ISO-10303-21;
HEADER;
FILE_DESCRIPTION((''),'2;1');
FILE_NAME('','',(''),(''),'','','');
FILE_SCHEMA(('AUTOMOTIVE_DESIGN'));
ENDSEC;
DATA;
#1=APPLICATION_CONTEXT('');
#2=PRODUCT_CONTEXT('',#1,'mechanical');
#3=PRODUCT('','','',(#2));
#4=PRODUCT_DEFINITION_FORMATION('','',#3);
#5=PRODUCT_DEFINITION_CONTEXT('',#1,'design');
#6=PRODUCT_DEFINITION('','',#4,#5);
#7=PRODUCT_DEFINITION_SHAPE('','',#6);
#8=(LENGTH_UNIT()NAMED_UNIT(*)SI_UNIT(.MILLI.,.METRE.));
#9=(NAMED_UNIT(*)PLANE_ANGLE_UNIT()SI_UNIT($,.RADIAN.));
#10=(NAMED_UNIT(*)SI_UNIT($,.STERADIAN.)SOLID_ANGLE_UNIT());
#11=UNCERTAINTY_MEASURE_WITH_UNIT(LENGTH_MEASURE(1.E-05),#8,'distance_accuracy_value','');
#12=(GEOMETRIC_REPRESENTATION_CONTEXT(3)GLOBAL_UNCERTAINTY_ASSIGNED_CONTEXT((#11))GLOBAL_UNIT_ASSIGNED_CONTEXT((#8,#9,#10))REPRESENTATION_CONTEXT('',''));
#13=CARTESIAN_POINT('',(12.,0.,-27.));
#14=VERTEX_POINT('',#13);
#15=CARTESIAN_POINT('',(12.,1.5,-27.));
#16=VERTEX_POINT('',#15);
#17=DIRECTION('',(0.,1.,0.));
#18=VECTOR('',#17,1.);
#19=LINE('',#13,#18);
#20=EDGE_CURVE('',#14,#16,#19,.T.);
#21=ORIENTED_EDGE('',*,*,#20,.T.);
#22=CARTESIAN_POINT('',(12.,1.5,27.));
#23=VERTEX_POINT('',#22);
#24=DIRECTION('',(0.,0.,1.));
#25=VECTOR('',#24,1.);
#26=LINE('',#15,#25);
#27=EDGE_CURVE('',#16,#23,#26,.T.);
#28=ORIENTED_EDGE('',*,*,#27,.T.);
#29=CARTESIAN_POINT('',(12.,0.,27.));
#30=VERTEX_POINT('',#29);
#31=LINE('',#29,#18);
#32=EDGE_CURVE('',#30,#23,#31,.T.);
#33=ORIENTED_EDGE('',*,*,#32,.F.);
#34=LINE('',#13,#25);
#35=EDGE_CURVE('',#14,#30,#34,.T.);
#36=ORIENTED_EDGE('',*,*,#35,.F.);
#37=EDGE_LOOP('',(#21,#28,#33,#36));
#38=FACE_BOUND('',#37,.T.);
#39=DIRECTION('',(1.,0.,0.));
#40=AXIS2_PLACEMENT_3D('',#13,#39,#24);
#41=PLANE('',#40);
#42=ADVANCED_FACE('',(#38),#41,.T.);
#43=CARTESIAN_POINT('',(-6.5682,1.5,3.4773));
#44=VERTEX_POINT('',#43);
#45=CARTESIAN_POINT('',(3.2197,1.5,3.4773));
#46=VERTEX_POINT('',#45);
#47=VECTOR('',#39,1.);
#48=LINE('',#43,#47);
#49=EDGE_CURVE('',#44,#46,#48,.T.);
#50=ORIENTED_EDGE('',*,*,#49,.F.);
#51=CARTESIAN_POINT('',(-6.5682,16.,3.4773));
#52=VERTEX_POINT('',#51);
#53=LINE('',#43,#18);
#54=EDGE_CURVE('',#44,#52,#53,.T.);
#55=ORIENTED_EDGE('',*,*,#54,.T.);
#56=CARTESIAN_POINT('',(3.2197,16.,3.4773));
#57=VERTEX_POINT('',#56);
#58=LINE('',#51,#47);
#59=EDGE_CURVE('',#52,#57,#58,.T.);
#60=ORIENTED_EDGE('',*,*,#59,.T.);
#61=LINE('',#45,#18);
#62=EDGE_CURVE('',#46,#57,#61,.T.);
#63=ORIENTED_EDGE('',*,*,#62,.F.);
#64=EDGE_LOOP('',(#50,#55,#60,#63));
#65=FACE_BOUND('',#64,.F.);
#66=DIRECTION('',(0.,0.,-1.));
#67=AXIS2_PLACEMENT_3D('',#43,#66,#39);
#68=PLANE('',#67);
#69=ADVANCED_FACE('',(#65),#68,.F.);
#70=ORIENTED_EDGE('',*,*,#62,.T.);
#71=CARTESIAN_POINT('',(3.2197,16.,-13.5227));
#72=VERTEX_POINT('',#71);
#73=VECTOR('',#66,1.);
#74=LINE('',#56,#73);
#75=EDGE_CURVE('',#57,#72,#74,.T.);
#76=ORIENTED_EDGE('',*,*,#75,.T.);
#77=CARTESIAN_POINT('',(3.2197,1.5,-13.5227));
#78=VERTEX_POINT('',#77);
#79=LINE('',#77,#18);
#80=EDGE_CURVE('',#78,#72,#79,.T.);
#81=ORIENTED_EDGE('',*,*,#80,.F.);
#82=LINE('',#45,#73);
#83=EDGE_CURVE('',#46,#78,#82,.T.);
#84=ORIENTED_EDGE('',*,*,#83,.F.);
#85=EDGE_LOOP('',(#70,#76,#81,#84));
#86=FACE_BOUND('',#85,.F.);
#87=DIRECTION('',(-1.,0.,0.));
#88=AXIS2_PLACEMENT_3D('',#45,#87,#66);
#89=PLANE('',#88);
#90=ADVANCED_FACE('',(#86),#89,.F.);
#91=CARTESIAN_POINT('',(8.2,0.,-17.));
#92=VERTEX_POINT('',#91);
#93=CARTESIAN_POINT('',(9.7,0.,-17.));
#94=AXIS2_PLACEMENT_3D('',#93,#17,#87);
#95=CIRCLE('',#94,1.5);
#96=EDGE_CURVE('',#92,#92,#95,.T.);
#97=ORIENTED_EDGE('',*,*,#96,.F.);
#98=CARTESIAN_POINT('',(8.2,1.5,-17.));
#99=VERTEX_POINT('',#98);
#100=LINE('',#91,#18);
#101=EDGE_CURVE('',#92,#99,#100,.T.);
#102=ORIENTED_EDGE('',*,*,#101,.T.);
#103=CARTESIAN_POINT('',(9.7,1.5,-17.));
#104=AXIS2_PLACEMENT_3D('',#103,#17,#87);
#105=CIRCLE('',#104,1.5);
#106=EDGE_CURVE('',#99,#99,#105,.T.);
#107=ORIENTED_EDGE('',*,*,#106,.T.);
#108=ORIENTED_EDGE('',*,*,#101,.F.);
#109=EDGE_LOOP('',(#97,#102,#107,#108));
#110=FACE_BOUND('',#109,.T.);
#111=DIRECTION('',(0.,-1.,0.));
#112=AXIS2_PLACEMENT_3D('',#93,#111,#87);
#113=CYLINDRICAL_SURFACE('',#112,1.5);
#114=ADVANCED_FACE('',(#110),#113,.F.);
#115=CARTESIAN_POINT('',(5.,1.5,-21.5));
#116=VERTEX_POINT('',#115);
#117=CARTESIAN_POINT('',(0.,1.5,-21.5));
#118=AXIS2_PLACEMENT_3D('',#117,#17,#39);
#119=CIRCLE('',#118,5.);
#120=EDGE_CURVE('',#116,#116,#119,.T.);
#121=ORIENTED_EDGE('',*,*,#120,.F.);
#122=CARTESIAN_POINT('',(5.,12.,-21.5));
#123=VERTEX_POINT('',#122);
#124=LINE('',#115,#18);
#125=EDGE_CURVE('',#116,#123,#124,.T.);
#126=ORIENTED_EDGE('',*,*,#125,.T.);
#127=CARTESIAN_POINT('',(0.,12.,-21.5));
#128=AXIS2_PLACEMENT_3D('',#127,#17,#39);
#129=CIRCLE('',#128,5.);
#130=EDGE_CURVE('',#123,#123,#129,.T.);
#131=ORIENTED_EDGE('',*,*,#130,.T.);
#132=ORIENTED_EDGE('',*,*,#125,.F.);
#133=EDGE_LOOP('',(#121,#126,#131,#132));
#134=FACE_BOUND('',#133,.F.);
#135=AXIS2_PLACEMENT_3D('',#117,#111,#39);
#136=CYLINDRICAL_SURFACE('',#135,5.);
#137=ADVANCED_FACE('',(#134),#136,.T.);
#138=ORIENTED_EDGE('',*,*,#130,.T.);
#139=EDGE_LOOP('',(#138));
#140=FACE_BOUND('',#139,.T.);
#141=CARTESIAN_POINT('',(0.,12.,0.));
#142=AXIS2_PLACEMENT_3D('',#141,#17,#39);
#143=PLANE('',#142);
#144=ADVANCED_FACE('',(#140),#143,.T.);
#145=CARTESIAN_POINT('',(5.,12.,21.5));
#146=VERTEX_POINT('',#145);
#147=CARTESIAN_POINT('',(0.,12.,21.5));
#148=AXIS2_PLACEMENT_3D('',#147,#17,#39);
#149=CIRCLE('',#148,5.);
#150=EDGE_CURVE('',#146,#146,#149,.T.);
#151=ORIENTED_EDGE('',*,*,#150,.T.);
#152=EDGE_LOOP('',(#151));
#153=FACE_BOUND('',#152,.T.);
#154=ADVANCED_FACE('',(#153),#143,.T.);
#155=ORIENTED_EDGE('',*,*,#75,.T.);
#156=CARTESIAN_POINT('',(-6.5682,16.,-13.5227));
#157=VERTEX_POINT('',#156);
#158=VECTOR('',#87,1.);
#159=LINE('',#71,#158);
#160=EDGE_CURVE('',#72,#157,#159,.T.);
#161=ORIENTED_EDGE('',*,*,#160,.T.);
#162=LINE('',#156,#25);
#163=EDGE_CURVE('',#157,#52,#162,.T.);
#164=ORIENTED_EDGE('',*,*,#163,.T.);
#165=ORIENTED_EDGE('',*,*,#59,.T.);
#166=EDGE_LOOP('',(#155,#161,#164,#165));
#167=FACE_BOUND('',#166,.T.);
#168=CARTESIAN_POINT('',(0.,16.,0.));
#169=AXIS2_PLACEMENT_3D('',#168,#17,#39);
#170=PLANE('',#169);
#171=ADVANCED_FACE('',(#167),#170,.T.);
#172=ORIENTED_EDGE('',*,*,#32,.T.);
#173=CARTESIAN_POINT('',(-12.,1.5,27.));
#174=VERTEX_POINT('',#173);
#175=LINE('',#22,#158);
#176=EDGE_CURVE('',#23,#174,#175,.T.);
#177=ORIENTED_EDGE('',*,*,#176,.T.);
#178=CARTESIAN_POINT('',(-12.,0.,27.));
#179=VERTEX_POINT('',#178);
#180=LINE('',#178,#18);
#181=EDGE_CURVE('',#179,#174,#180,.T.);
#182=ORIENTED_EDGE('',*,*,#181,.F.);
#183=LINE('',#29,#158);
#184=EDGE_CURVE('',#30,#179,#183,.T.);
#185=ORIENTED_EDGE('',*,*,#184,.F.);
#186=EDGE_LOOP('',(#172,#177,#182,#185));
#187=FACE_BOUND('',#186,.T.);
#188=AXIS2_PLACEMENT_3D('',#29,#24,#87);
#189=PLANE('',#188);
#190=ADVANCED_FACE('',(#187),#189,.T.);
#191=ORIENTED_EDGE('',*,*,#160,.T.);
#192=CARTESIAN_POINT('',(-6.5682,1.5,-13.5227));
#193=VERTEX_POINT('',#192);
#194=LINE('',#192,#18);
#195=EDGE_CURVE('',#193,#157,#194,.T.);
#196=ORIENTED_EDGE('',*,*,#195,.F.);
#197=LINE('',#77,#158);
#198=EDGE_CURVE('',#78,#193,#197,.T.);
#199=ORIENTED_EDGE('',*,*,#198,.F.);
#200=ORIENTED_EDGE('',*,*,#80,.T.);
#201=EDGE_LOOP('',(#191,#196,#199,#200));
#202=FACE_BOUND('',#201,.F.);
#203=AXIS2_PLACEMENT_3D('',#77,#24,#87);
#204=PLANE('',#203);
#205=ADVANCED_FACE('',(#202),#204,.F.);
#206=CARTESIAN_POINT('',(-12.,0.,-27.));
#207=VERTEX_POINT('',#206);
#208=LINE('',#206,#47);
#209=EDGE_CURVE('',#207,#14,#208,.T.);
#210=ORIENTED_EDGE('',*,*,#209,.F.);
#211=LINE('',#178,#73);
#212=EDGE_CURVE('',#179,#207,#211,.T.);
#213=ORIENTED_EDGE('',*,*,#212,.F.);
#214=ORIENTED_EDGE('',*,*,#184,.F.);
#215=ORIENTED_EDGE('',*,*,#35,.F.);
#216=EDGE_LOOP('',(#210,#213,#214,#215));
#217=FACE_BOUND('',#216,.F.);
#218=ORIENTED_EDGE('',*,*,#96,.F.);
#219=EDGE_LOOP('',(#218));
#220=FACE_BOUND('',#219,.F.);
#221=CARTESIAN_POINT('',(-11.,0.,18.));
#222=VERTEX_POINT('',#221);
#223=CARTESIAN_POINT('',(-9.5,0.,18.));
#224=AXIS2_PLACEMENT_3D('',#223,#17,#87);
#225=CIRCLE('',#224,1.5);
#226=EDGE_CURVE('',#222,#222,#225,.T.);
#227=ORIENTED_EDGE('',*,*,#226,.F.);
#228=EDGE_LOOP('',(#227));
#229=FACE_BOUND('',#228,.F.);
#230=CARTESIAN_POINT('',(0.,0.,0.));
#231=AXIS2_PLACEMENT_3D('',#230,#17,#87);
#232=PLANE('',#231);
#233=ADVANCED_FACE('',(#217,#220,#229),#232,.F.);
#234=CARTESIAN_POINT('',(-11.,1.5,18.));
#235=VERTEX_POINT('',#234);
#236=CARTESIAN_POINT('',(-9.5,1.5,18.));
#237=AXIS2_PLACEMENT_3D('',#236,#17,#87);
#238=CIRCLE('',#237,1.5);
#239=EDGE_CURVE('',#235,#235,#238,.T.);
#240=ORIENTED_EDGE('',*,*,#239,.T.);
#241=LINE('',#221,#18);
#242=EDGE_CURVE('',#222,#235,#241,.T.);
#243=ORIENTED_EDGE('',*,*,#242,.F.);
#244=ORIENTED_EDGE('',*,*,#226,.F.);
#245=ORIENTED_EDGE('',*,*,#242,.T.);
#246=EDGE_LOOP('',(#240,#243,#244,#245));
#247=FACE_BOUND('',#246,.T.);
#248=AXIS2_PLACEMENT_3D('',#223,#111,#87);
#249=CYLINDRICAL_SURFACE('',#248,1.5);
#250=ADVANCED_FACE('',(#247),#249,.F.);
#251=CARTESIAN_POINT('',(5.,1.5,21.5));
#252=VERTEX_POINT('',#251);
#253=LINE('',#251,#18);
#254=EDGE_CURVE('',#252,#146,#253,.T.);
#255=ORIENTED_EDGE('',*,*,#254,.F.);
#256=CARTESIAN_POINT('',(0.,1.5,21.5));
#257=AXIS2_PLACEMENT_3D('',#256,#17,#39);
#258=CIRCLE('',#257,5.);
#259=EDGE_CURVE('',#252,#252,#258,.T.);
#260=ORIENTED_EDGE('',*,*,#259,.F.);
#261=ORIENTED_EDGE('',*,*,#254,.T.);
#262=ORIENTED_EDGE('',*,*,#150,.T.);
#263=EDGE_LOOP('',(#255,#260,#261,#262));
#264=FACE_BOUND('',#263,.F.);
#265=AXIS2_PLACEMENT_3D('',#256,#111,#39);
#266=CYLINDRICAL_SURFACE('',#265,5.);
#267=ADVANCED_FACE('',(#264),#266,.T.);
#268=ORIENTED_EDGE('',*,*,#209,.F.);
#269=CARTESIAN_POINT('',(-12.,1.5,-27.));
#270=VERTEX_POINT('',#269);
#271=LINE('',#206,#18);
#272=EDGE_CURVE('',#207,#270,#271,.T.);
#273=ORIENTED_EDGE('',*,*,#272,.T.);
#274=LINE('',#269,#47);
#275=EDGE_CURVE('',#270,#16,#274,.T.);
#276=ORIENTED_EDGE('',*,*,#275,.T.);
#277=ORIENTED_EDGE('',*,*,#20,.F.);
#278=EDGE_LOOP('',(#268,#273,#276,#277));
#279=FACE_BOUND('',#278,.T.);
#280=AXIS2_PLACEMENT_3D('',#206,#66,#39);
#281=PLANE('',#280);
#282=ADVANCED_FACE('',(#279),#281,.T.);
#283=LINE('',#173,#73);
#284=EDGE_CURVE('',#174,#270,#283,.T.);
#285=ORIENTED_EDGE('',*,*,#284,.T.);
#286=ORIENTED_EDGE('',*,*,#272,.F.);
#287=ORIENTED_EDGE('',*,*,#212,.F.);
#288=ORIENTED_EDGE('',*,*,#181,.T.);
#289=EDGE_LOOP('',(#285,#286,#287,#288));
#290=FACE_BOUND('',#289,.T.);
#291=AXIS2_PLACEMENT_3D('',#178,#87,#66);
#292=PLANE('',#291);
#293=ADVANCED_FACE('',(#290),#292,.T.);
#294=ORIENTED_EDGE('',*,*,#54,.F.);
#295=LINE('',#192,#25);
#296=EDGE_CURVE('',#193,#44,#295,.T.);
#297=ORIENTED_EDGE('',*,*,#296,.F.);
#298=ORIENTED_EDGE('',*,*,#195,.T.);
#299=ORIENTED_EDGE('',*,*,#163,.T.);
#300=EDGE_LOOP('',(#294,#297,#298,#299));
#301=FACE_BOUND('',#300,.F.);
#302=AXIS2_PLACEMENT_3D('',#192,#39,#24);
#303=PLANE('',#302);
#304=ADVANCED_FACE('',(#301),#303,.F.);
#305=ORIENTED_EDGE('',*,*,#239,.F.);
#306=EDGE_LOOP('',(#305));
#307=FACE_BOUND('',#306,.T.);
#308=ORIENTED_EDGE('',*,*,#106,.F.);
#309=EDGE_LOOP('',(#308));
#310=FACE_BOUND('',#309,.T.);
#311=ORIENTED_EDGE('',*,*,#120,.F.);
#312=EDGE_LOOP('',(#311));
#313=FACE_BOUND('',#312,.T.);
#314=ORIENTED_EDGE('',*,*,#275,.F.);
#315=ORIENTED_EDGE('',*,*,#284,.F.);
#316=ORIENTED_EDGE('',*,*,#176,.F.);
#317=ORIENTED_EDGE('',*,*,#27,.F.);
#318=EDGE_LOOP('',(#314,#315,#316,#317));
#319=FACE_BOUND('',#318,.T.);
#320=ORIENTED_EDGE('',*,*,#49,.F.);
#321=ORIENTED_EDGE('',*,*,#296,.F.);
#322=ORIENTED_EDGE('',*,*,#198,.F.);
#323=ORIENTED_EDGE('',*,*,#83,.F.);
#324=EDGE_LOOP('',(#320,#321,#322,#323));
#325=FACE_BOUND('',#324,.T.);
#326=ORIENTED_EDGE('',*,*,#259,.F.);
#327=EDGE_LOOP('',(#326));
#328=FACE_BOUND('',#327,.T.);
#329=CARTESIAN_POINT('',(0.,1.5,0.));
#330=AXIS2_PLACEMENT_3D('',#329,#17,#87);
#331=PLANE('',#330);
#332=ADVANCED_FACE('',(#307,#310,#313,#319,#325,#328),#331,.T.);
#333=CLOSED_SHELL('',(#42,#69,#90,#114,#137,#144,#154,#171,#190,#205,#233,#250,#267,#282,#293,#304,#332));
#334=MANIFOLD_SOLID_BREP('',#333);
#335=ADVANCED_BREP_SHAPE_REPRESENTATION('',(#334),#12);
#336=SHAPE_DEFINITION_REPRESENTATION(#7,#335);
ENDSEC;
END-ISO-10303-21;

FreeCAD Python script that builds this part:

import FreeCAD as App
import Part
import Sketcher
from FreeCAD import Vector
Q = App.Units.Quantity


def add_polygon(sketch, points):
    """Adds a closed chain of lines whose ends are joined by coincident constraints."""
    first, n = sketch.GeometryCount, len(points)
    for a, b in zip(points, points[1:] + points[:1]):
        sketch.addGeometry(Part.LineSegment(App.Vector(*a, 0), App.Vector(*b, 0)), False)
    for i in range(n):
        sketch.addConstraint(Sketcher.Constraint("Coincident", first + i, 2, first + (i + 1) % n, 1))

doc = App.newDocument("Part")
body = doc.addObject("PartDesign::Body", "Body")

sketch1 = doc.addObject("Sketcher::SketchObject", "Sketch")
body.addObject(sketch1)
sketch1.AttachmentSupport = (doc.XZ_Plane, [""])
sketch1.MapMode = "FlatFace"
add_polygon(sketch1, [(-12, 27), (12, 27), (12, -27), (-12, -27)])
sketch1.addGeometry(Part.Circle(Vector(9.7, -17, 0), Vector(0, 0, 1), 1.5), False)
sketch1.addGeometry(Part.Circle(Vector(-9.5, 18, 0), Vector(0, 0, 1), 1.5), False)
sketch1.addConstraint(Sketcher.Constraint("Horizontal", 0))
sketch1.addConstraint(Sketcher.Constraint("Vertical", 1))
sketch1.addConstraint(Sketcher.Constraint("Horizontal", 2))
sketch1.addConstraint(Sketcher.Constraint("Vertical", 3))
sketch1.addConstraint(Sketcher.Constraint("Equal", 4, 5))
sketch1.addConstraint(Sketcher.Constraint("Symmetric", 0, 2, 2, 2, -1, 1))
sketch1.addConstraint(Sketcher.Constraint("Diameter", 4, Q("3 mm")))
sketch1.addConstraint(Sketcher.Constraint("DistanceX", 0, 1, 0, 2, Q("24 mm")))
sketch1.addConstraint(Sketcher.Constraint("DistanceY", 1, 2, 1, 1, Q("54 mm")))
sketch1.addConstraint(Sketcher.Constraint("DistanceY", 5, 3, 0, 2, Q("9 mm")))
sketch1.addConstraint(Sketcher.Constraint("DistanceY", 1, 2, 4, 3, Q("10 mm")))
sketch1.addConstraint(Sketcher.Constraint("DistanceX", 4, 3, 0, 2, Q("2.3 mm")))
sketch1.addConstraint(Sketcher.Constraint("DistanceX", 2, 2, 5, 3, Q("2.5 mm")))
pad1 = doc.addObject("PartDesign::Pad", "Pad")
body.addObject(pad1)
pad1.Profile = sketch1
pad1.Length = 1.5
pad1.Reversed = True

sketch2 = doc.addObject("Sketcher::SketchObject", "Sketch001")
body.addObject(sketch2)
sketch2.AttachmentSupport = (doc.XZ_Plane, [""])
sketch2.MapMode = "FlatFace"
sketch2.AttachmentOffset = App.Placement(Vector(0, 0, -1.5), App.Rotation())
sketch2.addGeometry(Part.Circle(Vector(0, 21.5, 0), Vector(0, 0, 1), 5), False)
sketch2.addGeometry(Part.Circle(Vector(0, -21.5, 0), Vector(0, 0, 1), 5), False)
sketch2.addConstraint(Sketcher.Constraint("Equal", 0, 1))
sketch2.addConstraint(Sketcher.Constraint("Symmetric", 0, 3, 1, 3, -1, 1))
sketch2.addConstraint(Sketcher.Constraint("PointOnObject", 0, 3, -2))
sketch2.addConstraint(Sketcher.Constraint("Diameter", 0, Q("10 mm")))
sketch2.addConstraint(Sketcher.Constraint("DistanceY", 1, 3, 0, 3, Q("43 mm")))
pad2 = doc.addObject("PartDesign::Pad", "Pad001")
body.addObject(pad2)
pad2.Profile = sketch2
pad2.Length = 10.5
pad2.Reversed = True

sketch3 = doc.addObject("Sketcher::SketchObject", "Sketch002")
body.addObject(sketch3)
sketch3.AttachmentSupport = (doc.XZ_Plane, [""])
sketch3.MapMode = "FlatFace"
sketch3.AttachmentOffset = App.Placement(Vector(0, 0, -1.5), App.Rotation())
add_polygon(sketch3, [(-6.5682, -13.5227), (-6.5682, 3.4773), (3.2197, 3.4773), (3.2197, -13.5227)])
sketch3.addConstraint(Sketcher.Constraint("Vertical", 0))
sketch3.addConstraint(Sketcher.Constraint("Horizontal", 1))
sketch3.addConstraint(Sketcher.Constraint("Vertical", 2))
sketch3.addConstraint(Sketcher.Constraint("Horizontal", 3))
sketch3.addConstraint(Sketcher.Constraint("DistanceY", 0, 1, 0, 2, Q("17 mm")))
sketch3.addConstraint(Sketcher.Constraint("DistanceX", 1, 1, 1, 2, Q("9.788 mm")))
sketch3.addConstraint(Sketcher.Constraint("DistanceX", 0, 2, -1, 1, Q("6.5682 mm")))
sketch3.addConstraint(Sketcher.Constraint("DistanceY", -1, 1, 0, 2, Q("3.4773 mm")))
pad3 = doc.addObject("PartDesign::Pad", "Pad002")
body.addObject(pad3)
pad3.Profile = sketch3
pad3.Length = 14.5
pad3.Reversed = True

doc.recompute()
